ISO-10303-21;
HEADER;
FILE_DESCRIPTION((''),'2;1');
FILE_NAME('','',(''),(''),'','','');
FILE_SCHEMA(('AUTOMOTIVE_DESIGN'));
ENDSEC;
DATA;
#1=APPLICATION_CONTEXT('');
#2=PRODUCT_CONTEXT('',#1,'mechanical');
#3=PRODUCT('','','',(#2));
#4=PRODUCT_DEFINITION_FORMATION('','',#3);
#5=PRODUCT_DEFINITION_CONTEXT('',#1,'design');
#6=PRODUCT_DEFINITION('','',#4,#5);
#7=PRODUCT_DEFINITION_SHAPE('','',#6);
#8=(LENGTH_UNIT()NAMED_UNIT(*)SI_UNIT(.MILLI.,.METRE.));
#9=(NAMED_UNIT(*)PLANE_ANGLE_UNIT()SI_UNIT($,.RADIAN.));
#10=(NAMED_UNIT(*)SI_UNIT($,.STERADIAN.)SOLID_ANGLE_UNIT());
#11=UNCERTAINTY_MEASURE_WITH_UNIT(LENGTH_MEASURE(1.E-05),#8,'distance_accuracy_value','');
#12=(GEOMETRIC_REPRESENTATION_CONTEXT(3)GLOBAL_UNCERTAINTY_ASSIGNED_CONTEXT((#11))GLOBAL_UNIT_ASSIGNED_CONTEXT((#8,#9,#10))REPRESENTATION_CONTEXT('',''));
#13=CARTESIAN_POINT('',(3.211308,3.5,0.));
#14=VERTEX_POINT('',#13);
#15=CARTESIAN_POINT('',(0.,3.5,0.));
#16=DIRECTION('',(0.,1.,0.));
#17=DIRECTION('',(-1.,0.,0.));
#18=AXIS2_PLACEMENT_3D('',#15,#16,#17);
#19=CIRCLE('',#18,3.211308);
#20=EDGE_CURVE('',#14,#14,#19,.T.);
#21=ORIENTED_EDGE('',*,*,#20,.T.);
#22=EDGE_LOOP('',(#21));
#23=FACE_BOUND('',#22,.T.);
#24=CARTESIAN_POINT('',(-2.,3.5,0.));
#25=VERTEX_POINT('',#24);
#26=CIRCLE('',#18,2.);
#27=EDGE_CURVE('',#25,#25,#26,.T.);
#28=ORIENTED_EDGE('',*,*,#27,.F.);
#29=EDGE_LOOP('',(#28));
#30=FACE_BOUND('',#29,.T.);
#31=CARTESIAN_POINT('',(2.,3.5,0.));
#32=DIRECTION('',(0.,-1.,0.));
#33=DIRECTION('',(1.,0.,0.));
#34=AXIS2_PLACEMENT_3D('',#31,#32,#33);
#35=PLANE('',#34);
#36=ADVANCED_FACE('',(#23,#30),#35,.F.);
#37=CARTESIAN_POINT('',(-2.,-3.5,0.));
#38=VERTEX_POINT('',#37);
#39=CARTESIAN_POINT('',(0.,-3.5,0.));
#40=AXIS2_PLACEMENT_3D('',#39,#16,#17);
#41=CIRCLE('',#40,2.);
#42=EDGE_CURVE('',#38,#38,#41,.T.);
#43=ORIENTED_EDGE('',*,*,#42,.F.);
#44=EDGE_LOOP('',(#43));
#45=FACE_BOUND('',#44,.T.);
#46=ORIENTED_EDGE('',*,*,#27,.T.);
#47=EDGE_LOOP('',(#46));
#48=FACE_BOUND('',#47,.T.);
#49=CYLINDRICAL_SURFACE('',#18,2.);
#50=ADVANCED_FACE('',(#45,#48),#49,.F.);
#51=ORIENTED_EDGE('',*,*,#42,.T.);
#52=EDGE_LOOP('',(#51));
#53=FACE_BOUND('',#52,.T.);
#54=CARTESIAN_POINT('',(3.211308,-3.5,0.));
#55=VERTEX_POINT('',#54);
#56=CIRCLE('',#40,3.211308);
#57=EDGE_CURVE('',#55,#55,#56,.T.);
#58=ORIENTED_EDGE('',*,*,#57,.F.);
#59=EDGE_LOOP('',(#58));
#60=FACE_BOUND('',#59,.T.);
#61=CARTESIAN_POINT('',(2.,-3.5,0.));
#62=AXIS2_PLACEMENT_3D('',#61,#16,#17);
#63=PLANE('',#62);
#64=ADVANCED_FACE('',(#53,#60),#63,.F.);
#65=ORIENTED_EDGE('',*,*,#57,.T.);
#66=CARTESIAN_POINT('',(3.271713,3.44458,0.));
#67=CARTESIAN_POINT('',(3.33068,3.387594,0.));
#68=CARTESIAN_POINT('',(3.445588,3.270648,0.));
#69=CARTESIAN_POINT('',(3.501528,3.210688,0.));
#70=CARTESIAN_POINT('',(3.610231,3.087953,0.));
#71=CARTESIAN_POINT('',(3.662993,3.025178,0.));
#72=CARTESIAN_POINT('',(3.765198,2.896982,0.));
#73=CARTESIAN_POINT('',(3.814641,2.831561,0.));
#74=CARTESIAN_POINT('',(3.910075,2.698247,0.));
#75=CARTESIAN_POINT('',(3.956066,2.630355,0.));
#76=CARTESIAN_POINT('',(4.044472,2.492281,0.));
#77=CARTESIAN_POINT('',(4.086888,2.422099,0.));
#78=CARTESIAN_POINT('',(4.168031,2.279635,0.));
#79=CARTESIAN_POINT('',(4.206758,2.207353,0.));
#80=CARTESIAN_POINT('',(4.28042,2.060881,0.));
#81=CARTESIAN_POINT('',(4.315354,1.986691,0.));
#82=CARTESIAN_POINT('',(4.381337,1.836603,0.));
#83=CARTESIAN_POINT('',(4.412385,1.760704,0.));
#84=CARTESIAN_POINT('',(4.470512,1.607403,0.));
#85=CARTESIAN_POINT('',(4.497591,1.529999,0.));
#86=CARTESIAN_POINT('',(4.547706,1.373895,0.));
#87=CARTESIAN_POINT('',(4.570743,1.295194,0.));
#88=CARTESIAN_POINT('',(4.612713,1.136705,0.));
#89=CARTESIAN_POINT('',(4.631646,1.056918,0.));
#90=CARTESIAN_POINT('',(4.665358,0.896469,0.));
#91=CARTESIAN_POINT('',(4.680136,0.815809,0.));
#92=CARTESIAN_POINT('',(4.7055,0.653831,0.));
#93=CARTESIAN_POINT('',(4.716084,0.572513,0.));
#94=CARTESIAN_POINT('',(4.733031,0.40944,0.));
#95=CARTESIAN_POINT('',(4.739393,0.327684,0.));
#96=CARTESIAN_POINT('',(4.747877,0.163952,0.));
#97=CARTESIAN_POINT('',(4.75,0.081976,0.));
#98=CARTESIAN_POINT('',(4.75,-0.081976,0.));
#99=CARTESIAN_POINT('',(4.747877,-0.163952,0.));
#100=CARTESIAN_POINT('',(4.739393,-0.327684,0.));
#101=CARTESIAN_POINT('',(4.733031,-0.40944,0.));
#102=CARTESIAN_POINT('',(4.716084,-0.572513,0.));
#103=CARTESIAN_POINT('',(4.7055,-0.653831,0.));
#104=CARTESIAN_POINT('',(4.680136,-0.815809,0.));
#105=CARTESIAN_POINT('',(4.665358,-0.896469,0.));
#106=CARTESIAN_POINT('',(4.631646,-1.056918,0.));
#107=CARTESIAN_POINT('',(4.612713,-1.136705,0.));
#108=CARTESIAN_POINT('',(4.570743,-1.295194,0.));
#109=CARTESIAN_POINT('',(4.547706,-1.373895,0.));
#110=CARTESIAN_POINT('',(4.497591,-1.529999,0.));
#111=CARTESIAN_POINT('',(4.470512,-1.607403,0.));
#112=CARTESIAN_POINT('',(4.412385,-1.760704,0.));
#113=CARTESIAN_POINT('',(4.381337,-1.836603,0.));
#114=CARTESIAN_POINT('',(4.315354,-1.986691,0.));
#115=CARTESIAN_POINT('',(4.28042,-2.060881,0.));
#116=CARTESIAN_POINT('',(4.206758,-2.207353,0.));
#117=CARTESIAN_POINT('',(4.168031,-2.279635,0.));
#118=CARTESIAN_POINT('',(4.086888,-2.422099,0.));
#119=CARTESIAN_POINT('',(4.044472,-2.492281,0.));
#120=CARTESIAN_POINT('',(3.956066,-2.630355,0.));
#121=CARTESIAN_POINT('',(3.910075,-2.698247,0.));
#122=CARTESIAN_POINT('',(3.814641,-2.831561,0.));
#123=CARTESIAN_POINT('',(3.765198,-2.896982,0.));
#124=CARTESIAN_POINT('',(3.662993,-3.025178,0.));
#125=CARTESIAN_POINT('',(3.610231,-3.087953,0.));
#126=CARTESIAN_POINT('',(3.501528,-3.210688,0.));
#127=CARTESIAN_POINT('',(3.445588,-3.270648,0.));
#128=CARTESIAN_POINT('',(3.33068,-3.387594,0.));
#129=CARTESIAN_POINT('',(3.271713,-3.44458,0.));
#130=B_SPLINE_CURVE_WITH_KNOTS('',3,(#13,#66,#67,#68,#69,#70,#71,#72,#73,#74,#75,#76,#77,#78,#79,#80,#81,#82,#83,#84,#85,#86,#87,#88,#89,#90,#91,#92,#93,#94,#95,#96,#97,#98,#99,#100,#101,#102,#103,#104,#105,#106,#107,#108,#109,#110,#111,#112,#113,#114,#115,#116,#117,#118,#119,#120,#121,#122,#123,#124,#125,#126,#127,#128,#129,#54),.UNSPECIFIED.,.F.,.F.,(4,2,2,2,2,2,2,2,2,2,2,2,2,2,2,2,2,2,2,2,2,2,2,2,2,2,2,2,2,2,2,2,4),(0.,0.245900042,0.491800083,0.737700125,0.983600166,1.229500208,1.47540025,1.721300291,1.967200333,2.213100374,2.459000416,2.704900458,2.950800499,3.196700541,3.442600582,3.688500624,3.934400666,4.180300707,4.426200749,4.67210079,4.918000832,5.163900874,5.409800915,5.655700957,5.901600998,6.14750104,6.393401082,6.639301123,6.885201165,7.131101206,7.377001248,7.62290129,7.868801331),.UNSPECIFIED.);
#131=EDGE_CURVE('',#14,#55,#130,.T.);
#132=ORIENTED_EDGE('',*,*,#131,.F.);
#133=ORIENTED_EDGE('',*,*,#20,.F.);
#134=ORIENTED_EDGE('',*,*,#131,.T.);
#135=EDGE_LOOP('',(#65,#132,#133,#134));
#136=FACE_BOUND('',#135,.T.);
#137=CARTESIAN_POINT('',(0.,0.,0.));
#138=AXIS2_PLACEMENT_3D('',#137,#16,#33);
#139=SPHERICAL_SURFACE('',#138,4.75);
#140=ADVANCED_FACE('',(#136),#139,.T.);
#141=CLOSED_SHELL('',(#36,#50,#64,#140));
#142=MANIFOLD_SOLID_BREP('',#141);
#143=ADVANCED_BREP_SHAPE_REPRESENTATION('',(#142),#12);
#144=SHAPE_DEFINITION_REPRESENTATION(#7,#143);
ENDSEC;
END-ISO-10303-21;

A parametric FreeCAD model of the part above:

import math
import FreeCAD as App
import Part
import Sketcher

doc = App.newDocument("Part")
body = doc.addObject("PartDesign::Body", "Body")

# Sketch on XY plane
sketch1 = doc.addObject("Sketcher::SketchObject", "Sketch")
body.addObject(sketch1)
sketch1.AttachmentSupport = (doc.XY_Plane, [""])
sketch1.MapMode = "FlatFace"
sketch1.addGeometry(Part.LineSegment(App.Vector(2, 3.5, 0), App.Vector(2, -3.5, 0)), False)
sketch1.addGeometry(Part.LineSegment(App.Vector(2, -3.5, 0), App.Vector(3.2, -3.5, 0)), False)
sketch1.addGeometry(Part.ArcOfCircle(Part.Circle(App.Vector(0, 0, 0), App.Vector(0, 0, 1), 4.8), math.radians(-47), math.radians(47)), False)
sketch1.addGeometry(Part.LineSegment(App.Vector(3.2, 3.5, 0), App.Vector(2, 3.5, 0)), False)
sketch1.addConstraint(Sketcher.Constraint("Coincident", 0, 2, 1, 1))
sketch1.addConstraint(Sketcher.Constraint("Coincident", 1, 2, 2, 1))
sketch1.addConstraint(Sketcher.Constraint("Coincident", 2, 2, 3, 1))
sketch1.addConstraint(Sketcher.Constraint("Coincident", 3, 2, 0, 1))
sketch1.addConstraint(Sketcher.Constraint("Vertical", 0))
sketch1.addConstraint(Sketcher.Constraint("Horizontal", 1))
sketch1.addConstraint(Sketcher.Constraint("Horizontal", 3))
sketch1.addConstraint(Sketcher.Constraint("Coincident", 2, 3, -1, 1))
sketch1.addConstraint(Sketcher.Constraint("Vertical", 1, 2, 2, 2))
sketch1.addConstraint(Sketcher.Constraint("DistanceY", 0, 2, 0, 1, 7.0))
sketch1.addConstraint(Sketcher.Constraint("Radius", 2, 4.75))
sketch1.addConstraint(Sketcher.Constraint("DistanceX", -1, 1, 0, 2, 2.0))
revolution = doc.addObject("PartDesign::Revolution", "Revolution")
body.addObject(revolution)
revolution.Profile = sketch1
revolution.ReferenceAxis = (sketch1, ["V_Axis"])
revolution.Angle = 360

doc.recompute()
